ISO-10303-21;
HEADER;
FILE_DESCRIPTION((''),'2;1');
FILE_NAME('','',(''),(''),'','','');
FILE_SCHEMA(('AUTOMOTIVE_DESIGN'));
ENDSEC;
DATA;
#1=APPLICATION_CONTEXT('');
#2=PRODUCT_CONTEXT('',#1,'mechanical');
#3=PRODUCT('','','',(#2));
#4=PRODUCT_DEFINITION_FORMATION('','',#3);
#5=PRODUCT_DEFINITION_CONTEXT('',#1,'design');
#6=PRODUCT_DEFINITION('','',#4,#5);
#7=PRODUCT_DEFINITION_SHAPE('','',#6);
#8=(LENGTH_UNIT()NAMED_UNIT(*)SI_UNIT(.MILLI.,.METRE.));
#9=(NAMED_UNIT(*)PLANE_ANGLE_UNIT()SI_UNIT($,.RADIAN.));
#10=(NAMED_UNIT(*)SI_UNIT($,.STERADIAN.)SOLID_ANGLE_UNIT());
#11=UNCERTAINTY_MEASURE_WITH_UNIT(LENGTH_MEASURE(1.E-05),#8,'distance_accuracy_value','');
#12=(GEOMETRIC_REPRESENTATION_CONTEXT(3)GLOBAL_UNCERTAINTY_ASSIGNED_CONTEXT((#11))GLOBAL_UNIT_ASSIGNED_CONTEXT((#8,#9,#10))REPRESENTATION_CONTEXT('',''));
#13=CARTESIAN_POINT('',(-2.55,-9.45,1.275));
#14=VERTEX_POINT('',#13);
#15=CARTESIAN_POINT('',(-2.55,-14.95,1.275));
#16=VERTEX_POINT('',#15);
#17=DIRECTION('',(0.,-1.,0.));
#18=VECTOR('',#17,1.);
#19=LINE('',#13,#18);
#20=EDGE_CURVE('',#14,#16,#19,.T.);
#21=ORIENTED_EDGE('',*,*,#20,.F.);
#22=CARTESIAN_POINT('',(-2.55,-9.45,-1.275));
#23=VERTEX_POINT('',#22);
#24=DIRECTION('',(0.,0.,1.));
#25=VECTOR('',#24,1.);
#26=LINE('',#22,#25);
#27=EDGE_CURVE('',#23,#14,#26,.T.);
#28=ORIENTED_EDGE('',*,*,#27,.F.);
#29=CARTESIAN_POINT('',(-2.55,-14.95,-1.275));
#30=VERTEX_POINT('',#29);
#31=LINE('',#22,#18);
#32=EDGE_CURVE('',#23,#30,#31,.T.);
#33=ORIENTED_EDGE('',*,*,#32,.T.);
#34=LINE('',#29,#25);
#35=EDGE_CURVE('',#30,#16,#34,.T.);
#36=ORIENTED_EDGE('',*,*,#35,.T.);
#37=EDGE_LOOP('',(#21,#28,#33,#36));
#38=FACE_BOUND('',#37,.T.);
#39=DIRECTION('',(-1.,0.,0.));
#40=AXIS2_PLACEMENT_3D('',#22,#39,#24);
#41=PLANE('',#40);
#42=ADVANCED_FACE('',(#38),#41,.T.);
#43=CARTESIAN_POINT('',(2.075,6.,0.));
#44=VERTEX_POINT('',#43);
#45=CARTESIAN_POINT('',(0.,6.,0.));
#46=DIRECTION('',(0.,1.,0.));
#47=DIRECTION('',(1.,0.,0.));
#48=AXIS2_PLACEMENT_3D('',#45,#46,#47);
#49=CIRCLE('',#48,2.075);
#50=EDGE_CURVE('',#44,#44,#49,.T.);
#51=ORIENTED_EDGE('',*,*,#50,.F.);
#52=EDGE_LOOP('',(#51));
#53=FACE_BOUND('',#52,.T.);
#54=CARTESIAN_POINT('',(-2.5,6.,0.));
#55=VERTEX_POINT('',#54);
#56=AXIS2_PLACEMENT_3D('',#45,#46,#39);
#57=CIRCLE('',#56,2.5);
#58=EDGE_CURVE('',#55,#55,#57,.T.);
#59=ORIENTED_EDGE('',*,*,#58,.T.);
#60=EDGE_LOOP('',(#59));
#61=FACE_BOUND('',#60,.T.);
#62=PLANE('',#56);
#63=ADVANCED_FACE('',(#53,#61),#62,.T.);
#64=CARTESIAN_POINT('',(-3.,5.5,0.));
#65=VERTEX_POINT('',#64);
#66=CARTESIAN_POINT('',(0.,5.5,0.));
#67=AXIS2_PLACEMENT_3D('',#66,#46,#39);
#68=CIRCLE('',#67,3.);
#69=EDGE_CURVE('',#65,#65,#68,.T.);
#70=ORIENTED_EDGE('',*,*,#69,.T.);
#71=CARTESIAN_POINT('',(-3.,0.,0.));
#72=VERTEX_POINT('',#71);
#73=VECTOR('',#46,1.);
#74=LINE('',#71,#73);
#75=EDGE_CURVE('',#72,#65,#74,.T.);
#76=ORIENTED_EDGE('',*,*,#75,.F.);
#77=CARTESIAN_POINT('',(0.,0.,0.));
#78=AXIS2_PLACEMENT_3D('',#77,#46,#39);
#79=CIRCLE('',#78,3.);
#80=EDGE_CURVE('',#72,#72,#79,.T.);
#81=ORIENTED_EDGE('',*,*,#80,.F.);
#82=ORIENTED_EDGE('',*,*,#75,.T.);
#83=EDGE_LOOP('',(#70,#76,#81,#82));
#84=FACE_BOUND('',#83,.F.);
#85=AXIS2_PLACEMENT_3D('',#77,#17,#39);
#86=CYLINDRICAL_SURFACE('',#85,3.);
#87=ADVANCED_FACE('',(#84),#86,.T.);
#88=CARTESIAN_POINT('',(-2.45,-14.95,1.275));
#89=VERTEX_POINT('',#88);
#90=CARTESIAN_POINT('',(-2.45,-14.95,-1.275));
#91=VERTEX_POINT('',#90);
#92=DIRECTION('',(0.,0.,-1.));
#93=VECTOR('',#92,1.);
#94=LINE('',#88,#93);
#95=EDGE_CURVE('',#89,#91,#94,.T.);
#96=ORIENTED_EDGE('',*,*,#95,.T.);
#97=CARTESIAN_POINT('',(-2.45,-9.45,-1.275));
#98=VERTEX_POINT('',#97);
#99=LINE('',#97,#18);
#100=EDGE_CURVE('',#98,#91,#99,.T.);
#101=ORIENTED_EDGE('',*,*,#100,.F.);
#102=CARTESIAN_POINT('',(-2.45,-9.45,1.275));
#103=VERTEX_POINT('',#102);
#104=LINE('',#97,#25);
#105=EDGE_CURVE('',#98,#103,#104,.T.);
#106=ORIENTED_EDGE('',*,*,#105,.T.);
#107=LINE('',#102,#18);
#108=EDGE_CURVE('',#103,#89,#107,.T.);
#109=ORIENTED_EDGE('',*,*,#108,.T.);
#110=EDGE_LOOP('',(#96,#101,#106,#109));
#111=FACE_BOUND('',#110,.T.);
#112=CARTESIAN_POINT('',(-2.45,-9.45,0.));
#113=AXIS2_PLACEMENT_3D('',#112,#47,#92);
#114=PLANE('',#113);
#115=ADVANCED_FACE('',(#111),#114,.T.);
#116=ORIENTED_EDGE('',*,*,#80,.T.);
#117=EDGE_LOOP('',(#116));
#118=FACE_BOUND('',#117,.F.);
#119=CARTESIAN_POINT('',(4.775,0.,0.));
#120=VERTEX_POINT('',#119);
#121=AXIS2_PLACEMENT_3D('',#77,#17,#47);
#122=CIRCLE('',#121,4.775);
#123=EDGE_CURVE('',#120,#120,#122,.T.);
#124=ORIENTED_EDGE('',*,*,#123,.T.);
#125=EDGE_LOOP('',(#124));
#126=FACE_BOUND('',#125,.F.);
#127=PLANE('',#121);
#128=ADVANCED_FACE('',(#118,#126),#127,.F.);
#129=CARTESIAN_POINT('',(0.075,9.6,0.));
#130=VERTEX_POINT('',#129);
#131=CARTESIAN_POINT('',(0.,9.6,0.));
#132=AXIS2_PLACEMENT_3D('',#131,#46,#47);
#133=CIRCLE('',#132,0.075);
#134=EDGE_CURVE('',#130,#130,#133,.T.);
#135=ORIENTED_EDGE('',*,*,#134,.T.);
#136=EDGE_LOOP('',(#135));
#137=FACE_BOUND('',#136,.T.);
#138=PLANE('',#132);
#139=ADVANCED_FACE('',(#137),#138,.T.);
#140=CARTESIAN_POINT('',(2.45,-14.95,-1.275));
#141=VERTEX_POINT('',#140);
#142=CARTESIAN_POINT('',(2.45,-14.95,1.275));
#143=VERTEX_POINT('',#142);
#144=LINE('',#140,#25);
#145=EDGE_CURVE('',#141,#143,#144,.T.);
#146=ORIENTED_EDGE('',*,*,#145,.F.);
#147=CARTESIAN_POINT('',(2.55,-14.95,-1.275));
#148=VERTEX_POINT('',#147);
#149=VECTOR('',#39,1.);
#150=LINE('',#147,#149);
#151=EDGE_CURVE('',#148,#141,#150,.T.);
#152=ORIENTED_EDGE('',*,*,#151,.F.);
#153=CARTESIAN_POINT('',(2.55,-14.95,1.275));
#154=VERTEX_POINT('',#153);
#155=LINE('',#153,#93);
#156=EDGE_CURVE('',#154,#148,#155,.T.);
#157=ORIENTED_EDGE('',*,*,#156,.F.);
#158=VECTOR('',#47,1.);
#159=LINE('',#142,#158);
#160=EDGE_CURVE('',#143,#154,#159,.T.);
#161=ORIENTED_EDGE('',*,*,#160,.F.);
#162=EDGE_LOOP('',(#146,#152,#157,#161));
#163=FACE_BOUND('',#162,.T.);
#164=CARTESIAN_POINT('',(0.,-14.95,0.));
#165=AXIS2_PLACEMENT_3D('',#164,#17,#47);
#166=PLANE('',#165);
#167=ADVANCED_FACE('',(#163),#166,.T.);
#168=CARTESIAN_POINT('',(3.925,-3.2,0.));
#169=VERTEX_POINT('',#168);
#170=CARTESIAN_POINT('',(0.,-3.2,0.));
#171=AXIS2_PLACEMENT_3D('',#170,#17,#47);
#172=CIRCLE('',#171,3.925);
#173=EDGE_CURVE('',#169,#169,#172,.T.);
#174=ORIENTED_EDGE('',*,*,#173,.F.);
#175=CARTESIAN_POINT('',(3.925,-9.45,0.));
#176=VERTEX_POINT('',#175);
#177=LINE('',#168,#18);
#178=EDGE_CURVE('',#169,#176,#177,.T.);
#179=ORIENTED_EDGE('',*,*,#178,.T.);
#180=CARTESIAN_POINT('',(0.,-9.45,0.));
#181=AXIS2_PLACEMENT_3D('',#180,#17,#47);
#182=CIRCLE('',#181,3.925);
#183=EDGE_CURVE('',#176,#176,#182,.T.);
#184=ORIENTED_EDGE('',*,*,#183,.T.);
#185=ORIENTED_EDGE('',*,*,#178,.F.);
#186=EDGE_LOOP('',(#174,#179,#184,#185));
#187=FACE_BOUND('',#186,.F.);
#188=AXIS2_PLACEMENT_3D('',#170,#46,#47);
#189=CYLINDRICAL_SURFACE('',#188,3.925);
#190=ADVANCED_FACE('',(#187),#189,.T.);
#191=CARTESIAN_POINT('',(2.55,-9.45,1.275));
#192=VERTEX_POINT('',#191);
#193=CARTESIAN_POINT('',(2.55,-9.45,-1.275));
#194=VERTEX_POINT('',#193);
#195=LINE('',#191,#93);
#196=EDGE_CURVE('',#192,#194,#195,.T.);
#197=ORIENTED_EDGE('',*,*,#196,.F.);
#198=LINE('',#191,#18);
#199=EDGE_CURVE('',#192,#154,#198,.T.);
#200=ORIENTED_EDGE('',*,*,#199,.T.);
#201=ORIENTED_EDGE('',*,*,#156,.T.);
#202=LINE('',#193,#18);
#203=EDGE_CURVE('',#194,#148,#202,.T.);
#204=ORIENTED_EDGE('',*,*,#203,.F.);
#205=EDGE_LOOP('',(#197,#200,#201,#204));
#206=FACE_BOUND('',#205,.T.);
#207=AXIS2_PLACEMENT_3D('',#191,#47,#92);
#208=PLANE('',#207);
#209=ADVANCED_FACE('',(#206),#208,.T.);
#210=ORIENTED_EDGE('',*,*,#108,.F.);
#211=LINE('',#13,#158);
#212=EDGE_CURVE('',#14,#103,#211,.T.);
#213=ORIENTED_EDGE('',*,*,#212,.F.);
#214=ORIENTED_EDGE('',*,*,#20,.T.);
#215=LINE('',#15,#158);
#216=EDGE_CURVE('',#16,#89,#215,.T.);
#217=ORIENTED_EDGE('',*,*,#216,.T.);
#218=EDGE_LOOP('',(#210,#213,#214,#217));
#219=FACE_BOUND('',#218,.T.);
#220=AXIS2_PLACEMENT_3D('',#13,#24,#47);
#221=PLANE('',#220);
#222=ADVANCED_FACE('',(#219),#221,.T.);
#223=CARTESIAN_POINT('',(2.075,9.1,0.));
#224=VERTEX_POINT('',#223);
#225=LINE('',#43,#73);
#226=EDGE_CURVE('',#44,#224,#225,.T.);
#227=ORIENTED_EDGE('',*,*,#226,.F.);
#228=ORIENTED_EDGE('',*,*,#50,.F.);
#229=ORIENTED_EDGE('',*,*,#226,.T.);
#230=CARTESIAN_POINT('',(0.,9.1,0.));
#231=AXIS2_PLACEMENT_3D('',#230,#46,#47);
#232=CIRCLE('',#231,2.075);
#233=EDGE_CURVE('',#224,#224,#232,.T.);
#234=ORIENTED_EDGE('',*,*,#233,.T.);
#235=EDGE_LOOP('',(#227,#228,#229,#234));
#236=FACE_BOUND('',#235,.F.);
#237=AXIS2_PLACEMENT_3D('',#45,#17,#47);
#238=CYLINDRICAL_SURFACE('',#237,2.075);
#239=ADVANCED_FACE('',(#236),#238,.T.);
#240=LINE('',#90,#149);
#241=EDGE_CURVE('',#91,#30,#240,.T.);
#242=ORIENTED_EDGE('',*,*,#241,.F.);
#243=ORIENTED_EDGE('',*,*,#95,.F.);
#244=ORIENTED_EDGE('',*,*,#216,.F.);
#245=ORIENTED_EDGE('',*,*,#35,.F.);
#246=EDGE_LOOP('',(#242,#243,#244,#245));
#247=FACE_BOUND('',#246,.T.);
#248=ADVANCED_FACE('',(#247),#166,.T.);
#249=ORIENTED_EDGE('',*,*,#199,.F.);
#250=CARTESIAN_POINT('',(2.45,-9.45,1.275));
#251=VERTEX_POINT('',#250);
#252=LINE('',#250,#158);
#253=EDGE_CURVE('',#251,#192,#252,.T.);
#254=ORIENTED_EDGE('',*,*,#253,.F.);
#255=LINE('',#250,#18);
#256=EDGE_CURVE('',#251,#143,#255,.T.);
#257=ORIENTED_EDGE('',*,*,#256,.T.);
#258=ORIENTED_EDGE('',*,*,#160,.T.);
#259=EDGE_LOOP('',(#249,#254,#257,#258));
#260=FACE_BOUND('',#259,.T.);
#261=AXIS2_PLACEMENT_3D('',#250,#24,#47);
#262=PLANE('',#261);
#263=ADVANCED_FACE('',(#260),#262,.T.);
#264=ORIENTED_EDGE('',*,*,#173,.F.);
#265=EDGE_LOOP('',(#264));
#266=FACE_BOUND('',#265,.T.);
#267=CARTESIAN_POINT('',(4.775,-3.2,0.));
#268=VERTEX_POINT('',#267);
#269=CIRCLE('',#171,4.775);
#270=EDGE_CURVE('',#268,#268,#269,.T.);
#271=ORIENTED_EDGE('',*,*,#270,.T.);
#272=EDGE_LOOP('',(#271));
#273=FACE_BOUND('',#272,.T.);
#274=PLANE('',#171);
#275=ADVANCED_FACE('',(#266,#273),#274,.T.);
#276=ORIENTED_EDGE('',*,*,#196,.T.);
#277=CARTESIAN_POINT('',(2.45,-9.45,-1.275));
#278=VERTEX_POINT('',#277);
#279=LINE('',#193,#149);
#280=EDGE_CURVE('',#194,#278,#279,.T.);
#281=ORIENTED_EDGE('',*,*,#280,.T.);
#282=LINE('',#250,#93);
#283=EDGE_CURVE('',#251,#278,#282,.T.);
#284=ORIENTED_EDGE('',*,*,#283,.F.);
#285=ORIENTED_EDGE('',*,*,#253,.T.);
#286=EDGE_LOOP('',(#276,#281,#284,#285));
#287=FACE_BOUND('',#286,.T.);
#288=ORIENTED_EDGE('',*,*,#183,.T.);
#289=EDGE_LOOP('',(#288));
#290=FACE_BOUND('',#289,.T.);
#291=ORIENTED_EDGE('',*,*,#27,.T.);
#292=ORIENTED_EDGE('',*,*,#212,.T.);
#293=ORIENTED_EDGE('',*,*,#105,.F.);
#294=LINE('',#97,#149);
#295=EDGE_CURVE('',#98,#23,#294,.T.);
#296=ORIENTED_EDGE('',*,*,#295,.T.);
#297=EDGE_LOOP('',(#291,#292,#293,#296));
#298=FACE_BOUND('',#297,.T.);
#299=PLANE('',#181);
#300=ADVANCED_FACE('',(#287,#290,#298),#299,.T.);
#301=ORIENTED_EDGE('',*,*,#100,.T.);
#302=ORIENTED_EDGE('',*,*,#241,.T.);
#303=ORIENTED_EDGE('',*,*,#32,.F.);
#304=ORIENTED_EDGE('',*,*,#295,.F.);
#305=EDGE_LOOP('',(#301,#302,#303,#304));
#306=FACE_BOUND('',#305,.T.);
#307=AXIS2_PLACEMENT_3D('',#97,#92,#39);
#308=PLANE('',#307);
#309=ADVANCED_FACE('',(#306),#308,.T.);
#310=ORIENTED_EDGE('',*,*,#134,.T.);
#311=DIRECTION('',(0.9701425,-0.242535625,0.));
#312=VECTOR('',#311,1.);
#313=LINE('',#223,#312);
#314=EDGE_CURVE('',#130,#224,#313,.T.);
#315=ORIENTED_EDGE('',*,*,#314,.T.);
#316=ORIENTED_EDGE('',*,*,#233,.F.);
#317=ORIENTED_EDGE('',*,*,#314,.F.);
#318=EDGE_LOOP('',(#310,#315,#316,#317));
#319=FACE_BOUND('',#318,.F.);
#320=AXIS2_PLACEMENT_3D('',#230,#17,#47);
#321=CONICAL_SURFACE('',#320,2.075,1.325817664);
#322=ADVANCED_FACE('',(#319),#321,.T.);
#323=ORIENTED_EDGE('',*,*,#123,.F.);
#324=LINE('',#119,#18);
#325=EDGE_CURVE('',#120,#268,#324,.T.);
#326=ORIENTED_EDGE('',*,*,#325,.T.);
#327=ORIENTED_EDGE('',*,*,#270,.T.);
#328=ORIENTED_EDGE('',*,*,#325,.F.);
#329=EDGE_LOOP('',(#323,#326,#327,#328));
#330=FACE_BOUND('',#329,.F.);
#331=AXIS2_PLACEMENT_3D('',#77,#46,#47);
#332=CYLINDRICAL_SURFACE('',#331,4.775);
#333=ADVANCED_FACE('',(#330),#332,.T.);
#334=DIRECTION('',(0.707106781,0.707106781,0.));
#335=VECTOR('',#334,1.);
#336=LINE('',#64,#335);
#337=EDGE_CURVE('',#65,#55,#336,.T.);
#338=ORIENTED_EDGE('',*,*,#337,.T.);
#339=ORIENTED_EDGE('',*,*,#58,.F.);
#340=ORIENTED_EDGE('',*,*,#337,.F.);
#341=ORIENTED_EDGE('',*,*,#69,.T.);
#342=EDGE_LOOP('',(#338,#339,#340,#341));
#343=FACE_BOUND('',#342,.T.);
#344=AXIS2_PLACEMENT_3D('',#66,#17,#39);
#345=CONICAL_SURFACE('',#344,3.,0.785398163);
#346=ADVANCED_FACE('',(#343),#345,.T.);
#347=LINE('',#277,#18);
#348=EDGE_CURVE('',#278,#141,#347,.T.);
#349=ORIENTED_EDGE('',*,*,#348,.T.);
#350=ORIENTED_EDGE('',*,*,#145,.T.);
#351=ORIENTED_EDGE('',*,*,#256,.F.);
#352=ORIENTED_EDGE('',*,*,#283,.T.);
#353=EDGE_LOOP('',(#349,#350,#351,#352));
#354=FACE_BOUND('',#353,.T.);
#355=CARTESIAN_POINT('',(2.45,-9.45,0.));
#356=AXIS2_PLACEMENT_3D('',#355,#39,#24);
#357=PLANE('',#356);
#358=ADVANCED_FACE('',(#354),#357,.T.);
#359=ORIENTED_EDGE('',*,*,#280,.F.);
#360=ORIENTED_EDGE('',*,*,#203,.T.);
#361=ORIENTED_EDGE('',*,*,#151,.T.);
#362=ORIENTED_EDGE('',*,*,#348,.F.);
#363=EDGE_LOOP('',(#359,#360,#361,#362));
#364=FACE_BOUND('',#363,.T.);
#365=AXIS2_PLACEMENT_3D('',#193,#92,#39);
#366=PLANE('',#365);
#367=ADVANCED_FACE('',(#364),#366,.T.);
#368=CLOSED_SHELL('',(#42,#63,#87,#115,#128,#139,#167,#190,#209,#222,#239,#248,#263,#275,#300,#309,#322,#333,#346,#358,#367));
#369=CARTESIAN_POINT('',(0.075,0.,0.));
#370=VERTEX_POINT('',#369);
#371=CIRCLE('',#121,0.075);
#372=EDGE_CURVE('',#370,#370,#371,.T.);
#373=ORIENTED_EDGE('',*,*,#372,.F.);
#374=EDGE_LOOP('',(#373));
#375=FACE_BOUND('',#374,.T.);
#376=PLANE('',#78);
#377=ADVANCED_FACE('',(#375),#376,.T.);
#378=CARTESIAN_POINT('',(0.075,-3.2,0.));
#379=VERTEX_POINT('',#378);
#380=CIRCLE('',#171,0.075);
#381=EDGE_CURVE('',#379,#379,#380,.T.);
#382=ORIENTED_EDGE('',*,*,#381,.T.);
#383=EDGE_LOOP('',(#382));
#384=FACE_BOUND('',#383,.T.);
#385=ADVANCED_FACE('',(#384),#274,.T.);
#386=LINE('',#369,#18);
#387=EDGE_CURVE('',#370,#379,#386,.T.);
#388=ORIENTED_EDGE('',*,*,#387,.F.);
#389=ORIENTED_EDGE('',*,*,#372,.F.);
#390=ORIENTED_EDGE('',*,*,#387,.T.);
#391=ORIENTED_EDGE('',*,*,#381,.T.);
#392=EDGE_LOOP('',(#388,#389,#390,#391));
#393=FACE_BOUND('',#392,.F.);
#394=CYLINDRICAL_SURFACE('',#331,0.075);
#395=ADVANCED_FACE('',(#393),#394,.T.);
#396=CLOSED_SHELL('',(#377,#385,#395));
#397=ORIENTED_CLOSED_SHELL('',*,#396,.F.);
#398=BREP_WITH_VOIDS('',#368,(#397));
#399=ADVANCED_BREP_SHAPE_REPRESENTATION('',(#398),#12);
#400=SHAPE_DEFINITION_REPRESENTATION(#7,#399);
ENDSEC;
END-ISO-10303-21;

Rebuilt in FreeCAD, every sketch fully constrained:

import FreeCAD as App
import Part
import Sketcher
from FreeCAD import Vector
Q = App.Units.Quantity


def edges_at(feature, points):
    """Names of the edges that pass closest to the given points."""
    edges = feature.Shape.Edges
    near = lambda p: min(range(len(edges)), key=lambda i: edges[i].distToShape(Part.Vertex(*p))[0])
    return sorted({f"Edge{near(p) + 1}" for p in points})


def add_polygon(sketch, points):
    """Adds a closed chain of lines whose ends are joined by coincident constraints."""
    first, n = sketch.GeometryCount, len(points)
    for a, b in zip(points, points[1:] + points[:1]):
        sketch.addGeometry(Part.LineSegment(App.Vector(*a, 0), App.Vector(*b, 0)), False)
    for i in range(n):
        sketch.addConstraint(Sketcher.Constraint("Coincident", first + i, 2, first + (i + 1) % n, 1))

doc = App.newDocument("Part")
body = doc.addObject("PartDesign::Body", "Body")

# Sketch on XZ plane
sketch1 = doc.addObject("Sketcher::SketchObject", "Sketch")
body.addObject(sketch1)
sketch1.AttachmentSupport = (doc.XZ_Plane, [""])
sketch1.MapMode = "FlatFace"
sketch1.addGeometry(Part.Circle(Vector(0, 0, 0), Vector(0, 0, 1), 3), False)
sketch1.addConstraint(Sketcher.Constraint("Coincident", 0, 3, -1, 1))
sketch1.addConstraint(Sketcher.Constraint("Diameter", 0, Q("6 mm")))
pad1 = doc.addObject("PartDesign::Pad", "Pad")
body.addObject(pad1)
pad1.Profile = sketch1
pad1.Length = 6
pad1.Reversed = True

# Sketch on XZ plane
sketch2 = doc.addObject("Sketcher::SketchObject", "Sketch001")
body.addObject(sketch2)
sketch2.AttachmentSupport = (doc.XZ_Plane, [""])
sketch2.MapMode = "FlatFace"
sketch2.AttachmentOffset = App.Placement(Vector(0, 0, -6), App.Rotation())
sketch2.addGeometry(Part.Circle(Vector(0, 0, 0), Vector(0, 0, 1), 2.1), False)
sketch2.addConstraint(Sketcher.Constraint("Coincident", 0, 3, -1, 1))
sketch2.addConstraint(Sketcher.Constraint("Diameter", 0, Q("4.15 mm")))
pad2 = doc.addObject("PartDesign::Pad", "Pad001")
body.addObject(pad2)
pad2.Profile = sketch2
pad2.Length = 3.6
pad2.Reversed = True
doc.recompute()

chamfer = doc.addObject("PartDesign::Chamfer", "Chamfer")
body.addObject(chamfer)
chamfer.Base = (pad2, edges_at(pad2, [(-2.075, 9.6, 0)]))
chamfer.ChamferType = "Two distances"
chamfer.Size = 2
chamfer.Size2 = 0.5
chamfer.FlipDirection = True

# Sketch on XZ plane
sketch3 = doc.addObject("Sketcher::SketchObject", "Sketch002")
body.addObject(sketch3)
sketch3.AttachmentSupport = (doc.XZ_Plane, [""])
sketch3.MapMode = "FlatFace"
sketch3.addGeometry(Part.Circle(Vector(0, 0, 0), Vector(0, 0, 1), 4.78), False)
sketch3.addGeometry(Part.Circle(Vector(0, 0, 0), Vector(0, 0, 1), 0.07), False)
sketch3.addConstraint(Sketcher.Constraint("Coincident", 0, 3, -1, 1))
sketch3.addConstraint(Sketcher.Constraint("Coincident", 1, 3, -1, 1))
sketch3.addConstraint(Sketcher.Constraint("Diameter", 0, Q("9.55 mm")))
sketch3.addConstraint(Sketcher.Constraint("Diameter", 1, Q("0.15 mm")))
pad3 = doc.addObject("PartDesign::Pad", "Pad002")
body.addObject(pad3)
pad3.Profile = sketch3
pad3.Length = 3.2

# Sketch on XZ plane
sketch4 = doc.addObject("Sketcher::SketchObject", "Sketch003")
body.addObject(sketch4)
sketch4.AttachmentSupport = (doc.XZ_Plane, [""])
sketch4.MapMode = "FlatFace"
sketch4.AttachmentOffset = App.Placement(Vector(0, 0, 3.2), App.Rotation())
sketch4.addGeometry(Part.Circle(Vector(0, 0, 0), Vector(0, 0, 1), 3.9), False)
sketch4.addConstraint(Sketcher.Constraint("Coincident", 0, 3, -1, 1))
sketch4.addConstraint(Sketcher.Constraint("Diameter", 0, Q("7.85 mm")))
pad4 = doc.addObject("PartDesign::Pad", "Pad003")
body.addObject(pad4)
pad4.Profile = sketch4
pad4.Length = 6.25
doc.recompute()

chamfer2 = doc.addObject("PartDesign::Chamfer", "Chamfer001")
body.addObject(chamfer2)
chamfer2.Base = (pad4, edges_at(pad4, [(3, 6, 0)]))
chamfer2.Size = 0.5

# Sketch on XZ plane
sketch5 = doc.addObject("Sketcher::SketchObject", "Sketch004")
body.addObject(sketch5)
sketch5.AttachmentSupport = (doc.XZ_Plane, [""])
sketch5.MapMode = "FlatFace"
sketch5.AttachmentOffset = App.Placement(Vector(0, 0, 9.45), App.Rotation())
add_polygon(sketch5, [(-2.45, -1.27), (-2.45, 1.27), (-2.55, 1.27), (-2.55, -1.27)])  # lines 0-3
add_polygon(sketch5, [(2.45, 1.27), (2.45, -1.27), (2.55, -1.27), (2.55, 1.27)])  # lines 4-7
sketch5.addConstraint(Sketcher.Constraint("Vertical", 0))
sketch5.addConstraint(Sketcher.Constraint("Horizontal", 1))
sketch5.addConstraint(Sketcher.Constraint("Vertical", 2))
sketch5.addConstraint(Sketcher.Constraint("Horizontal", 3))
sketch5.addConstraint(Sketcher.Constraint("Vertical", 4))
sketch5.addConstraint(Sketcher.Constraint("Horizontal", 5))
sketch5.addConstraint(Sketcher.Constraint("Vertical", 6))
sketch5.addConstraint(Sketcher.Constraint("Horizontal", 7))
sketch5.addConstraint(Sketcher.Constraint("Symmetric", 0, 2, 4, 2, -1, 1))
sketch5.addConstraint(Sketcher.Constraint("Symmetric", 2, 2, 6, 2, -1, 1))
sketch5.addConstraint(Sketcher.Constraint("Horizontal", 3, 2, 4, 2))
sketch5.addConstraint(Sketcher.Constraint("DistanceX", 1, 2, 1, 1, Q("0.1 mm")))
sketch5.addConstraint(Sketcher.Constraint("DistanceY", 0, 1, 0, 2, Q("2.55 mm")))
sketch5.addConstraint(Sketcher.Constraint("DistanceX", 1, 2, -1, 1, Q("2.55 mm")))
pad5 = doc.addObject("PartDesign::Pad", "Pad004")
body.addObject(pad5)
pad5.Profile = sketch5
pad5.Length = 5.5

doc.recompute()
